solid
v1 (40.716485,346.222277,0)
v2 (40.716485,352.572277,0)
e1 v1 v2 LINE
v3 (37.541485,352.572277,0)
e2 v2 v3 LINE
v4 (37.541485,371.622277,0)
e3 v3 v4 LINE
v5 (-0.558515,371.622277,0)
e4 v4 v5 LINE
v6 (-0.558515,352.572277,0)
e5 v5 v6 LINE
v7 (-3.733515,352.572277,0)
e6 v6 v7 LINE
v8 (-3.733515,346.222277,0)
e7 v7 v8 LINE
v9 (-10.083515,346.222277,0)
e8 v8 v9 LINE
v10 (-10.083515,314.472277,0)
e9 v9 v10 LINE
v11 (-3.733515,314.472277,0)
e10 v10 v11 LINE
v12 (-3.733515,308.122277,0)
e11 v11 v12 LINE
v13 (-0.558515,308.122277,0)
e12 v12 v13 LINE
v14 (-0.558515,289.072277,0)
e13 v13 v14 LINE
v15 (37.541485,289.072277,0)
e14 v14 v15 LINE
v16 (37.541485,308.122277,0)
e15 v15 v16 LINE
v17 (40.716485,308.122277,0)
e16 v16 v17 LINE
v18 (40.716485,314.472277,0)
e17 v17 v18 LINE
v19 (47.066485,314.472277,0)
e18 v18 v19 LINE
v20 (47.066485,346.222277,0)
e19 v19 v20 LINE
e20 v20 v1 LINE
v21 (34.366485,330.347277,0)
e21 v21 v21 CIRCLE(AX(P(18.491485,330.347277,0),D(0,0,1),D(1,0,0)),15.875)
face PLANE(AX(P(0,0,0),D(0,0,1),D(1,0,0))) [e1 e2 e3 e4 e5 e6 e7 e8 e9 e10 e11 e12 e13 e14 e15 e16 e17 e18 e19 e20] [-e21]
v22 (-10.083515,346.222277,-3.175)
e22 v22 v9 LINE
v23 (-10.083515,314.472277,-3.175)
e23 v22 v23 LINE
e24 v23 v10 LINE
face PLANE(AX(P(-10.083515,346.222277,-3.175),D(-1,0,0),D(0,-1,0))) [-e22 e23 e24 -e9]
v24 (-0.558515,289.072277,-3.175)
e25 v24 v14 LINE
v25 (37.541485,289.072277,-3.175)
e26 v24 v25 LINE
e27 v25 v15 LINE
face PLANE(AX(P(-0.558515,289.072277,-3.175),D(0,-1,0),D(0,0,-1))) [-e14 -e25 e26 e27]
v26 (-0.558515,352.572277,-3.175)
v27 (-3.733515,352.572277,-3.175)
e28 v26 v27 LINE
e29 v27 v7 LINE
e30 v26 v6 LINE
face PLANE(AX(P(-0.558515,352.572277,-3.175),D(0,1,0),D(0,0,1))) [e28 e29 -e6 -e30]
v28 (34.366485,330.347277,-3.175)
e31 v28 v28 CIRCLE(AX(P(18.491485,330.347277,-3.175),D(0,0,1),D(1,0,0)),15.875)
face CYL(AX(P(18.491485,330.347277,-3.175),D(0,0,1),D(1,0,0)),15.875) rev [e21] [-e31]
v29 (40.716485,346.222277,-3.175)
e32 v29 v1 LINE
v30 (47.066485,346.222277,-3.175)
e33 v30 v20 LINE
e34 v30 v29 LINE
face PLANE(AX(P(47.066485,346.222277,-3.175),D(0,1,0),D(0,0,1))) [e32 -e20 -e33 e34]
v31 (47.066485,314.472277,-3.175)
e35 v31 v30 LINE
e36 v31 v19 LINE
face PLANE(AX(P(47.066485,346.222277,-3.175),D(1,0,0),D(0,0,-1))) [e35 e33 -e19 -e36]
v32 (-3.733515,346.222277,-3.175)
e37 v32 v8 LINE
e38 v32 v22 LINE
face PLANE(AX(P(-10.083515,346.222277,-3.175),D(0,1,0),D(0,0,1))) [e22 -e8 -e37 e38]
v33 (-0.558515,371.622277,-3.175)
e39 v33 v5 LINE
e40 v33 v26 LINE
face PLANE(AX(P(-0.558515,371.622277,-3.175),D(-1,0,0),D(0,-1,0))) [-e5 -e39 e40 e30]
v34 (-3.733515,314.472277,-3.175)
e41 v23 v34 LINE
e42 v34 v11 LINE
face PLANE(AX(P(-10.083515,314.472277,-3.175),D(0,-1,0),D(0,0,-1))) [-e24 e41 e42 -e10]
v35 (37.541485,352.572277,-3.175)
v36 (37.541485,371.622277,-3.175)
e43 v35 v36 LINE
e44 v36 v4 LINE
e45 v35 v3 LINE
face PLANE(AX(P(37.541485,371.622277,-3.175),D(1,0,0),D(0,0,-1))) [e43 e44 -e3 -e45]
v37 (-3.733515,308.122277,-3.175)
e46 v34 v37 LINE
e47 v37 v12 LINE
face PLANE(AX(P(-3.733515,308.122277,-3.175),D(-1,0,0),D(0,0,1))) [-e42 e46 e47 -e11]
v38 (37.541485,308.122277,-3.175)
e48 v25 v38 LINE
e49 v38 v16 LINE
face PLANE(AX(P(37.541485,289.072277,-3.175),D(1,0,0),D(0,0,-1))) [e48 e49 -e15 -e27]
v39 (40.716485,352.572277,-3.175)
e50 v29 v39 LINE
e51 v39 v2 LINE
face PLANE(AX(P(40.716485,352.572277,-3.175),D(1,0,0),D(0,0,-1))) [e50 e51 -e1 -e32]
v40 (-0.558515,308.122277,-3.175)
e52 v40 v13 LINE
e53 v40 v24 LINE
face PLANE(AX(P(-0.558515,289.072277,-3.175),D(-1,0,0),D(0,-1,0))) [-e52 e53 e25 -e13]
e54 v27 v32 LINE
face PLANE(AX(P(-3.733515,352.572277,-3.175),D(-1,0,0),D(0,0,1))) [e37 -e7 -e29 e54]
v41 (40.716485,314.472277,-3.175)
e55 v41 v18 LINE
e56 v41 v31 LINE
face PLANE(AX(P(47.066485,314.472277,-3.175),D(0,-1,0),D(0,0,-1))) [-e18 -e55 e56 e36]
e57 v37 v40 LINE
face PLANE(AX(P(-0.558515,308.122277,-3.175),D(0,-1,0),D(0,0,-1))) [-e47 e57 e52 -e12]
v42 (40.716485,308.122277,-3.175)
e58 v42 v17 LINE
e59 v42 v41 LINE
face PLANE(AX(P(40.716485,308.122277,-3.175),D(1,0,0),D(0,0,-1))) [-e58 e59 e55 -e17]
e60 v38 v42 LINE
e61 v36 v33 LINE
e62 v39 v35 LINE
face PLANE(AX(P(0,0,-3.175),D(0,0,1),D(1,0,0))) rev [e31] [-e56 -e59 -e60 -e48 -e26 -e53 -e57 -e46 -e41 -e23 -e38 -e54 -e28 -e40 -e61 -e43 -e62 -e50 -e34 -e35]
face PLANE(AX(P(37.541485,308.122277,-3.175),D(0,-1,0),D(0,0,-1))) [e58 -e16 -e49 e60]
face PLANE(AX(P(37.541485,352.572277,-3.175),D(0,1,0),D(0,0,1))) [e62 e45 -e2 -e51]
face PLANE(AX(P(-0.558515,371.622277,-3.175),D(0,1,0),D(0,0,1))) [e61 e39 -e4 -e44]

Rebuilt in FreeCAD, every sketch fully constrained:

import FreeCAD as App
import Part
import Sketcher

V = App.Vector
Q = App.Units.Quantity

doc = App.newDocument("Part")
body = doc.addObject("PartDesign::Body", "Body")

sketch1 = body.newObject("Sketcher::SketchObject", "Sketch")
sketch1.AttachmentSupport = (doc.getObject("XY_Plane"), [""])
sketch1.MapMode = "FlatFace"
sketch1.addGeometry([
    Part.LineSegment(V(-0.6, 289.1, 0), V(37.5, 289.1, 0)),
    Part.LineSegment(V(37.5, 289.1, 0), V(37.5, 308.1, 0)),
    Part.LineSegment(V(37.5, 308.1, 0), V(40.7, 308.1, 0)),
    Part.LineSegment(V(40.7, 308.1, 0), V(40.7, 314.5, 0)),
    Part.LineSegment(V(40.7, 314.5, 0), V(47.1, 314.5, 0)),
    Part.LineSegment(V(47.1, 314.5, 0), V(47.1, 346.2, 0)),
    Part.LineSegment(V(47.1, 346.2, 0), V(40.7, 346.2, 0)),
    Part.LineSegment(V(40.7, 346.2, 0), V(40.7, 352.6, 0)),
    Part.LineSegment(V(40.7, 352.6, 0), V(37.5, 352.6, 0)),
    Part.LineSegment(V(37.5, 352.6, 0), V(37.5, 371.6, 0)),
    Part.LineSegment(V(37.5, 371.6, 0), V(-0.6, 371.6, 0)),
    Part.LineSegment(V(-0.6, 371.6, 0), V(-0.6, 352.6, 0)),
    Part.LineSegment(V(-0.6, 352.6, 0), V(-3.7, 352.6, 0)),
    Part.LineSegment(V(-3.7, 352.6, 0), V(-3.7, 346.2, 0)),
    Part.LineSegment(V(-3.7, 346.2, 0), V(-10.1, 346.2, 0)),
    Part.LineSegment(V(-10.1, 346.2, 0), V(-10.1, 314.5, 0)),
    Part.LineSegment(V(-10.1, 314.5, 0), V(-3.7, 314.5, 0)),
    Part.LineSegment(V(-3.7, 314.5, 0), V(-3.7, 308.1, 0)),
    Part.LineSegment(V(-3.7, 308.1, 0), V(-0.6, 308.1, 0)),
    Part.LineSegment(V(-0.6, 308.1, 0), V(-0.6, 289.1, 0)),
    Part.Circle(V(18.5, 330.3, 0), V(0, 0, 1), 15.9),
], False)
sketch1.addConstraint([
    Sketcher.Constraint("Coincident", 0, 2, 1, 1),
    Sketcher.Constraint("Coincident", 1, 2, 2, 1),
    Sketcher.Constraint("Coincident", 2, 2, 3, 1),
    Sketcher.Constraint("Coincident", 3, 2, 4, 1),
    Sketcher.Constraint("Coincident", 4, 2, 5, 1),
    Sketcher.Constraint("Coincident", 5, 2, 6, 1),
    Sketcher.Constraint("Coincident", 6, 2, 7, 1),
    Sketcher.Constraint("Coincident", 7, 2, 8, 1),
    Sketcher.Constraint("Coincident", 8, 2, 9, 1),
    Sketcher.Constraint("Coincident", 9, 2, 10, 1),
    Sketcher.Constraint("Coincident", 10, 2, 11, 1),
    Sketcher.Constraint("Coincident", 11, 2, 12, 1),
    Sketcher.Constraint("Coincident", 12, 2, 13, 1),
    Sketcher.Constraint("Coincident", 13, 2, 14, 1),
    Sketcher.Constraint("Coincident", 14, 2, 15, 1),
    Sketcher.Constraint("Coincident", 15, 2, 16, 1),
    Sketcher.Constraint("Coincident", 16, 2, 17, 1),
    Sketcher.Constraint("Coincident", 17, 2, 18, 1),
    Sketcher.Constraint("Coincident", 18, 2, 19, 1),
    Sketcher.Constraint("Coincident", 19, 2, 0, 1),
    Sketcher.Constraint("Horizontal", 0),
    Sketcher.Constraint("Vertical", 1),
    Sketcher.Constraint("Horizontal", 2),
    Sketcher.Constraint("Vertical", 3),
    Sketcher.Constraint("Horizontal", 4),
    Sketcher.Constraint("Vertical", 5),
    Sketcher.Constraint("Horizontal", 6),
    Sketcher.Constraint("Vertical", 7),
    Sketcher.Constraint("Horizontal", 8),
    Sketcher.Constraint("Vertical", 9),
    Sketcher.Constraint("Horizontal", 10),
    Sketcher.Constraint("Vertical", 11),
    Sketcher.Constraint("Horizontal", 12),
    Sketcher.Constraint("Vertical", 13),
    Sketcher.Constraint("Horizontal", 14),
    Sketcher.Constraint("Vertical", 15),
    Sketcher.Constraint("Horizontal", 16),
    Sketcher.Constraint("Vertical", 17),
    Sketcher.Constraint("Horizontal", 18),
    Sketcher.Constraint("Vertical", 19),
    Sketcher.Constraint("Horizontal", 8, 2, 11, 2),
    Sketcher.Constraint("Horizontal", 6, 2, 13, 2),
    Sketcher.Constraint("Horizontal", 4, 2, 15, 2),
    Sketcher.Constraint("Horizontal", 2, 2, 17, 2),
    Sketcher.Constraint("Vertical", 3, 2, 6, 2),
    Sketcher.Constraint("Vertical", 1, 2, 8, 2),
    Sketcher.Constraint("Vertical", 13, 2, 16, 2),
    Sketcher.Constraint("Vertical", 11, 2, 18, 2),
    Sketcher.Constraint("Equal", 8, 12),
    Sketcher.Constraint("Equal", 6, 14),
    Sketcher.Constraint("Equal", 16, 3),
    Sketcher.Constraint("Equal", 3, 7),
    Sketcher.Constraint("Equal", 1, 9),
    Sketcher.Constraint("Diameter", 20, Q("1.25 in")),
    Sketcher.Constraint("DistanceX", 0, 1, 0, 2, Q("1.5 in")),
    Sketcher.Constraint("DistanceY", 0, 2, 3, 2, Q("1 in")),
    Sketcher.Constraint("DistanceX", 4, 1, 4, 2, Q("0.25 in")),
    Sketcher.Constraint("DistanceY", 5, 1, 5, 2, Q("1.25 in")),
    Sketcher.Constraint("DistanceX", 2, 1, 2, 2, Q("0.125 in")),
    Sketcher.Constraint("DistanceX", 20, 3, 0, 2, Q("0.75 in")),
    Sketcher.Constraint("DistanceY", 0, 2, 20, 3, Q("1.625 in")),
    Sketcher.Constraint("DistanceX", -1, 1, 20, 3, Q("18.491485 mm")),
    Sketcher.Constraint("DistanceY", -1, 1, 20, 3, Q("330.347277 mm")),
])
pad1 = body.newObject("PartDesign::Pad", "Pad")
pad1.Profile = sketch1
pad1.Length = Q("0.125 in")
pad1.Reversed = True

doc.recompute()
